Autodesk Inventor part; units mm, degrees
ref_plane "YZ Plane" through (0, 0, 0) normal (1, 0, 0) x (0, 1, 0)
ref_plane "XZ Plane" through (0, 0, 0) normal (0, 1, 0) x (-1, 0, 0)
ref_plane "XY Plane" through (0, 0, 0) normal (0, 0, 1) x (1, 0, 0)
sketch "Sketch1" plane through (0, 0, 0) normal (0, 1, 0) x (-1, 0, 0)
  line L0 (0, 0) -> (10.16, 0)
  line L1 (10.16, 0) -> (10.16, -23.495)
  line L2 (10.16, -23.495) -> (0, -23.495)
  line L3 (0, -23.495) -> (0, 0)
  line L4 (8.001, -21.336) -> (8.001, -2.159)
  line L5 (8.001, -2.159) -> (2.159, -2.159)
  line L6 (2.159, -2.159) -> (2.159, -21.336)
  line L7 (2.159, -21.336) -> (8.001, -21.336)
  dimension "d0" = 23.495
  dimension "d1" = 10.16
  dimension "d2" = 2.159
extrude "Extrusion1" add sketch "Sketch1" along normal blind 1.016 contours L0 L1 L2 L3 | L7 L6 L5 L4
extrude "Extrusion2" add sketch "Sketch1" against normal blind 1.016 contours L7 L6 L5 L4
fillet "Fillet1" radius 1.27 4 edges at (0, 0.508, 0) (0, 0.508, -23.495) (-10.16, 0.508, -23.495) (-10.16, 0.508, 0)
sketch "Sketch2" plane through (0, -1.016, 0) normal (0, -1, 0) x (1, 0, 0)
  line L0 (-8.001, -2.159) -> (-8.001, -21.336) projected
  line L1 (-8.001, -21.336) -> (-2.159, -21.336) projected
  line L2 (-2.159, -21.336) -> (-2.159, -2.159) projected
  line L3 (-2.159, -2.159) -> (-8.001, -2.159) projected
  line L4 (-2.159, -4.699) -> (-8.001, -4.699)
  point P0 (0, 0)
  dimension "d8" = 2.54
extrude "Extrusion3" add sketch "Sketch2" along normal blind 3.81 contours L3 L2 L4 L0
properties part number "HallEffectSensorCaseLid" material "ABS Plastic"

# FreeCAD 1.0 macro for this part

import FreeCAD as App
import Part
import Sketcher

V = App.Vector
Q = App.Units.Quantity


def edges_at(feature, points):
    """Names of the edges that pass closest to the given points."""
    edges = feature.Shape.Edges
    near = lambda p: min(range(len(edges)), key=lambda i: edges[i].distToShape(Part.Vertex(*p))[0])
    return sorted({f"Edge{near(p) + 1}" for p in points})

doc = App.newDocument("Part")
params = doc.addObject("Spreadsheet::Sheet", "Params")
for row, (alias, value) in enumerate([
    ("sketch1_width", "0.4 in"),
    ("sketch1_height", "0.925 in"),
    ("pad1_length", "0.04 in"),
    ("sketch2_width", "0.23 in"),
    ("sketch2_height", "0.755 in"),
    ("pad2_length", "0.04 in"),
    ("fillet_radius", "0.05 in"),
    ("sketch3_height", "0.1 in"),
    ("sketch3_width", "0.23 in"),
    ("pad3_length", "0.15 in"),
], start=1):
    params.set(f"A{row}", alias)
    params.set(f"B{row}", "=" + value)
    params.setAlias(f"B{row}", alias)

body = doc.addObject("PartDesign::Body", "Body")

# Sketch on XZ plane
sketch1 = body.newObject("Sketcher::SketchObject", "Sketch")
sketch1.AttachmentSupport = (doc.getObject("XZ_Plane"), [""])
sketch1.MapMode = "FlatFace"
sketch1.addGeometry([
    Part.LineSegment(V(-10, 0, 0), V(0, 0, 0)),
    Part.LineSegment(V(0, 0, 0), V(0, -23, 0)),
    Part.LineSegment(V(0, -23, 0), V(-10, -23, 0)),
    Part.LineSegment(V(-10, -23, 0), V(-10, 0, 0)),
], False)
sketch1.addConstraint([
    Sketcher.Constraint("Coincident", 0, 2, 1, 1),
    Sketcher.Constraint("Coincident", 1, 2, 2, 1),
    Sketcher.Constraint("Coincident", 2, 2, 3, 1),
    Sketcher.Constraint("Coincident", 3, 2, 0, 1),
    Sketcher.Constraint("Horizontal", 0),
    Sketcher.Constraint("Vertical", 1),
    Sketcher.Constraint("Horizontal", 2),
    Sketcher.Constraint("Vertical", 3),
    Sketcher.Constraint("Coincident", 0, 2, -1, 1),
    Sketcher.Constraint("DistanceX", 0, 1, 0, 2, Q("0.4 in")),
    Sketcher.Constraint("DistanceY", 1, 2, 1, 1, Q("0.925 in")),
])
sketch1.setExpression("Constraints[9]", "Params.sketch1_width")
sketch1.setExpression("Constraints[10]", "Params.sketch1_height")
pad1 = body.newObject("PartDesign::Pad", "Pad")
pad1.Profile = sketch1
pad1.setExpression("Length", "Params.pad1_length")
pad1.Reversed = True

# Sketch on XZ plane
sketch2 = body.newObject("Sketcher::SketchObject", "Sketch001")
sketch2.AttachmentSupport = (doc.getObject("XZ_Plane"), [""])
sketch2.MapMode = "FlatFace"
sketch2.addGeometry([
    Part.LineSegment(V(-2, -21, 0), V(-8, -21, 0)),
    Part.LineSegment(V(-8, -21, 0), V(-8, -2, 0)),
    Part.LineSegment(V(-8, -2, 0), V(-2, -2, 0)),
    Part.LineSegment(V(-2, -2, 0), V(-2, -21, 0)),
], False)
sketch2.addConstraint([
    Sketcher.Constraint("Coincident", 0, 2, 1, 1),
    Sketcher.Constraint("Coincident", 1, 2, 2, 1),
    Sketcher.Constraint("Coincident", 2, 2, 3, 1),
    Sketcher.Constraint("Coincident", 3, 2, 0, 1),
    Sketcher.Constraint("Horizontal", 0),
    Sketcher.Constraint("Vertical", 1),
    Sketcher.Constraint("Horizontal", 2),
    Sketcher.Constraint("Vertical", 3),
    Sketcher.Constraint("DistanceY", 1, 2, -1, 1, Q("0.085 in")),
    Sketcher.Constraint("DistanceX", 2, 2, -1, 1, Q("0.085 in")),
    Sketcher.Constraint("DistanceX", 0, 2, 0, 1, Q("0.23 in")),
    Sketcher.Constraint("DistanceY", 1, 1, 1, 2, Q("0.755 in")),
])
sketch2.setExpression("Constraints[10]", "Params.sketch2_width")
sketch2.setExpression("Constraints[11]", "Params.sketch2_height")
pad2 = body.newObject("PartDesign::Pad", "Pad001")
pad2.Profile = sketch2
pad2.setExpression("Length", "Params.pad2_length")
doc.recompute()

fillet = body.newObject("PartDesign::Fillet", "Fillet")
fillet.Base = (pad2, edges_at(pad2, [
    (0, 0.508, 0),
    (0, 0.508, -23.495),
    (-10.16, 0.508, -23.495),
    (-10.16, 0.508, 0),
]))
fillet.setExpression("Radius", "Params.fillet_radius")

# Sketch on XZ plane
sketch3 = body.newObject("Sketcher::SketchObject", "Sketch002")
sketch3.AttachmentSupport = (doc.getObject("XZ_Plane"), [""])
sketch3.MapMode = "FlatFace"
sketch3.AttachmentOffset = App.Placement(V(0, 0, 0.04 * 25.4), App.Rotation())
sketch3.addGeometry([
    Part.LineSegment(V(-2.2, -2.2, 0), V(-8, -2.2, 0)),
    Part.LineSegment(V(-8, -2.2, 0), V(-8, -4.7, 0)),
    Part.LineSegment(V(-8, -4.7, 0), V(-2.2, -4.7, 0)),
    Part.LineSegment(V(-2.2, -4.7, 0), V(-2.2, -2.2, 0)),
], False)
sketch3.addConstraint([
    Sketcher.Constraint("Coincident", 0, 2, 1, 1),
    Sketcher.Constraint("Coincident", 1, 2, 2, 1),
    Sketcher.Constraint("Coincident", 2, 2, 3, 1),
    Sketcher.Constraint("Coincident", 3, 2, 0, 1),
    Sketcher.Constraint("Horizontal", 0),
    Sketcher.Constraint("Vertical", 1),
    Sketcher.Constraint("Horizontal", 2),
    Sketcher.Constraint("Vertical", 3),
    Sketcher.Constraint("DistanceY", 1, 2, 1, 1, Q("0.1 in")),
    Sketcher.Constraint("DistanceX", 0, 2, 0, 1, Q("0.23 in")),
    Sketcher.Constraint("DistanceX", 0, 2, -1, 1, Q("0.315 in")),
    Sketcher.Constraint("DistanceY", 0, 2, -1, 1, Q("0.085 in")),
])
sketch3.setExpression("Constraints[8]", "Params.sketch3_height")
sketch3.setExpression("Constraints[9]", "Params.sketch3_width")
pad3 = body.newObject("PartDesign::Pad", "Pad002")
pad3.Profile = sketch3
pad3.setExpression("Length", "Params.pad3_length")

doc.recompute()
